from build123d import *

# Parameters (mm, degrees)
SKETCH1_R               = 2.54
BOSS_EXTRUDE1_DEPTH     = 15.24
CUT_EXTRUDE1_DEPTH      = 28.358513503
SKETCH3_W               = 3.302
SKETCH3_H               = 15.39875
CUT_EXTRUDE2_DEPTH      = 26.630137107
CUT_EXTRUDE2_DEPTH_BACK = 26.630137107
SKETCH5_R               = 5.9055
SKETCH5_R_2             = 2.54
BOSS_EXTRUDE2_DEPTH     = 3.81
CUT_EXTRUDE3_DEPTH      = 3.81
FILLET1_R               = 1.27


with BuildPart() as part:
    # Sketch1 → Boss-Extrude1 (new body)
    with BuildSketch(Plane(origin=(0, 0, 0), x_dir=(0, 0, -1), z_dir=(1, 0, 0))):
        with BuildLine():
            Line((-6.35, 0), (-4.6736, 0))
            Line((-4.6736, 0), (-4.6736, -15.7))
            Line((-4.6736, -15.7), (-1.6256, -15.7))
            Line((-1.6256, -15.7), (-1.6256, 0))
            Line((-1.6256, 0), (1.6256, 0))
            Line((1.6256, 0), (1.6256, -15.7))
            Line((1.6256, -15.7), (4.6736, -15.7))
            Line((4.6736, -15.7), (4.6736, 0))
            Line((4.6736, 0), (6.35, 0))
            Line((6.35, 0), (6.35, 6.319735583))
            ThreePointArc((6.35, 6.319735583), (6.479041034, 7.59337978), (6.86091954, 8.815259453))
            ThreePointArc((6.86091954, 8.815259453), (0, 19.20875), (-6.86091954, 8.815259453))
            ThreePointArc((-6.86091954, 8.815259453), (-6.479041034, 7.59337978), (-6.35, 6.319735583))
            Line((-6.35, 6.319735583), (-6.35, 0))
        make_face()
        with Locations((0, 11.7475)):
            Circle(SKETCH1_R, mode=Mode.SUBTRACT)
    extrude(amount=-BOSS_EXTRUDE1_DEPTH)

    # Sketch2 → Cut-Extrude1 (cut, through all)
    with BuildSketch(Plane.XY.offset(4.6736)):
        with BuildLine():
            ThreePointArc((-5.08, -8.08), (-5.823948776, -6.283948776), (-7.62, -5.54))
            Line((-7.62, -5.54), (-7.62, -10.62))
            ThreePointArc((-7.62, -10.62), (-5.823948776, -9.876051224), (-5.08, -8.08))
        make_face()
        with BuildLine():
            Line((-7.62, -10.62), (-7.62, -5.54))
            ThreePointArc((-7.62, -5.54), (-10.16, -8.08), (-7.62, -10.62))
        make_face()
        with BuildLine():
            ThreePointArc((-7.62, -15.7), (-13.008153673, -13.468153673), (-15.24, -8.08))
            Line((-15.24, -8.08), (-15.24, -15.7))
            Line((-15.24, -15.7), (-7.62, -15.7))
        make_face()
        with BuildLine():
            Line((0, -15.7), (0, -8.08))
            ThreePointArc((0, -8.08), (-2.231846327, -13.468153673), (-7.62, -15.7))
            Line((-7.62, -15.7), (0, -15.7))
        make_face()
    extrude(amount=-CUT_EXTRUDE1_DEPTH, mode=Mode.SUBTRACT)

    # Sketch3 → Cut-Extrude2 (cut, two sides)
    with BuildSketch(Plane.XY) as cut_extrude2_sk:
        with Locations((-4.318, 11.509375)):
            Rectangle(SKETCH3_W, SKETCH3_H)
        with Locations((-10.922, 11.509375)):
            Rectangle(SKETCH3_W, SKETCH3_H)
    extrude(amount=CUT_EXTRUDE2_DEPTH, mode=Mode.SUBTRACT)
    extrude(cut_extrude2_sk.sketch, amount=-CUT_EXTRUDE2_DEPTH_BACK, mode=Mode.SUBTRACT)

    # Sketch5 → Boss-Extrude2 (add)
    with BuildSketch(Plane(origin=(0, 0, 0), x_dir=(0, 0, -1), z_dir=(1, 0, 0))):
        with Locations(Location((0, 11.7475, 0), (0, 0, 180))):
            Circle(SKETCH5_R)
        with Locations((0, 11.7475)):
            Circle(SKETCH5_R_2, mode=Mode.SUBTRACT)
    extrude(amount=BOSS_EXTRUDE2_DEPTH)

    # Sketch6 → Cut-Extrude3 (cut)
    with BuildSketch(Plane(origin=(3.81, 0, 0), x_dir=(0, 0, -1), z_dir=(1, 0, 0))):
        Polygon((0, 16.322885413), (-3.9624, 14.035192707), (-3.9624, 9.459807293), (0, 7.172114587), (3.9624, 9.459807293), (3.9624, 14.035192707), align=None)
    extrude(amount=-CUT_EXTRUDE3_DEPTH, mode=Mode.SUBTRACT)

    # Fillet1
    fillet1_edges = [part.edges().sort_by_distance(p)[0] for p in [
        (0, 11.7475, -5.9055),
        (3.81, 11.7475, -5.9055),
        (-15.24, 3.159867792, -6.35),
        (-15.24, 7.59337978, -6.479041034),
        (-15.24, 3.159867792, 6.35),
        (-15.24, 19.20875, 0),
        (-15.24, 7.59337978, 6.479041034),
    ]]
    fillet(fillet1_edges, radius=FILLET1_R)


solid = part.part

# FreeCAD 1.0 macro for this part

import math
import FreeCAD as App
import Part
import Sketcher
from FreeCAD import Vector
Q = App.Units.Quantity


def edges_at(feature, points):
    """Names of the edges that pass closest to the given points."""
    edges = feature.Shape.Edges
    near = lambda p: min(range(len(edges)), key=lambda i: edges[i].distToShape(Part.Vertex(*p))[0])
    return sorted({f"Edge{near(p) + 1}" for p in points})

doc = App.newDocument("Part")
body = doc.addObject("PartDesign::Body", "Body")

# Sketch on YZ plane
sketch1 = doc.addObject("Sketcher::SketchObject", "Sketch")
body.addObject(sketch1)
sketch1.AttachmentSupport = (doc.YZ_Plane, [""])
sketch1.MapMode = "FlatFace"
sketch1.addGeometry(Part.LineSegment(Vector(0, 6.35, 0), Vector(0, 4.6736, 0)), False)
sketch1.addGeometry(Part.LineSegment(Vector(0, 4.6736, 0), Vector(-15.7, 4.6736, 0)), False)
sketch1.addGeometry(Part.LineSegment(Vector(-15.7, 4.6736, 0), Vector(-15.7, 1.6256, 0)), False)
sketch1.addGeometry(Part.LineSegment(Vector(-15.7, 1.6256, 0), Vector(0, 1.6256, 0)), False)
sketch1.addGeometry(Part.LineSegment(Vector(0, 1.6256, 0), Vector(0, -1.6256, 0)), False)
sketch1.addGeometry(Part.LineSegment(Vector(0, -1.6256, 0), Vector(-15.7, -1.6256, 0)), False)
sketch1.addGeometry(Part.LineSegment(Vector(-15.7, -1.6256, 0), Vector(-15.7, -4.6736, 0)), False)
sketch1.addGeometry(Part.LineSegment(Vector(-15.7, -4.6736, 0), Vector(0, -4.6736, 0)), False)
sketch1.addGeometry(Part.LineSegment(Vector(0, -4.6736, 0), Vector(0, -6.35, 0)), False)
sketch1.addGeometry(Part.LineSegment(Vector(0, -6.35, 0), Vector(6.319736, -6.35, 0)), False)
sketch1.addGeometry(Part.ArcOfCircle(Part.Circle(Vector(6.319736, -12.7, 0), Vector(0, 0, 1), 6.35), math.radians(66.858959), math.radians(90)), False)
sketch1.addGeometry(Part.ArcOfCircle(Part.Circle(Vector(11.7475, 0, 0), Vector(0, 0, 1), 7.46125), math.radians(-113.141041), math.radians(113.141041)), False)
sketch1.addGeometry(Part.ArcOfCircle(Part.Circle(Vector(6.319736, 12.7, 0), Vector(0, 0, 1), 6.35), math.radians(-90), math.radians(-66.858959)), False)
sketch1.addGeometry(Part.LineSegment(Vector(6.319736, 6.35, 0), Vector(0, 6.35, 0)), False)
sketch1.addGeometry(Part.Circle(Vector(11.7475, 0, 0), Vector(0, 0, 1), 2.54), False)
sketch1.addConstraint(Sketcher.Constraint("Coincident", 0, 2, 1, 1))
sketch1.addConstraint(Sketcher.Constraint("Coincident", 1, 2, 2, 1))
sketch1.addConstraint(Sketcher.Constraint("Coincident", 2, 2, 3, 1))
sketch1.addConstraint(Sketcher.Constraint("Coincident", 3, 2, 4, 1))
sketch1.addConstraint(Sketcher.Constraint("Coincident", 4, 2, 5, 1))
sketch1.addConstraint(Sketcher.Constraint("Coincident", 5, 2, 6, 1))
sketch1.addConstraint(Sketcher.Constraint("Coincident", 6, 2, 7, 1))
sketch1.addConstraint(Sketcher.Constraint("Coincident", 7, 2, 8, 1))
sketch1.addConstraint(Sketcher.Constraint("Coincident", 8, 2, 9, 1))
sketch1.addConstraint(Sketcher.Constraint("Tangent", 9, 2, 10, 2))
sketch1.addConstraint(Sketcher.Constraint("Tangent", 10, 1, 11, 1))
sketch1.addConstraint(Sketcher.Constraint("Tangent", 11, 2, 12, 2))
sketch1.addConstraint(Sketcher.Constraint("Tangent", 12, 1, 13, 1))
sketch1.addConstraint(Sketcher.Constraint("Coincident", 13, 2, 0, 1))
sketch1.addConstraint(Sketcher.Constraint("Vertical", 0))
sketch1.addConstraint(Sketcher.Constraint("Horizontal", 1))
sketch1.addConstraint(Sketcher.Constraint("Vertical", 2))
sketch1.addConstraint(Sketcher.Constraint("Horizontal", 3))
sketch1.addConstraint(Sketcher.Constraint("Vertical", 4))
sketch1.addConstraint(Sketcher.Constraint("Horizontal", 5))
sketch1.addConstraint(Sketcher.Constraint("Vertical", 6))
sketch1.addConstraint(Sketcher.Constraint("Horizontal", 7))
sketch1.addConstraint(Sketcher.Constraint("Vertical", 8))
sketch1.addConstraint(Sketcher.Constraint("Horizontal", 9))
sketch1.addConstraint(Sketcher.Constraint("Horizontal", 13))
sketch1.addConstraint(Sketcher.Constraint("Coincident", 14, 3, 11, 3))
sketch1.addConstraint(Sketcher.Constraint("Equal", 10, 12))
sketch1.addConstraint(Sketcher.Constraint("Symmetric", 3, 2, 4, 2, -1, 1))
sketch1.addConstraint(Sketcher.Constraint("Symmetric", 0, 2, 7, 2, -1, 1))
sketch1.addConstraint(Sketcher.Constraint("Symmetric", 10, 3, 12, 3, -1))
sketch1.addConstraint(Sketcher.Constraint("PointOnObject", 0, 2, -2))
sketch1.addConstraint(Sketcher.Constraint("Vertical", 2, 2, 5, 2))
sketch1.addConstraint(Sketcher.Constraint("Diameter", 14, Q("0.2 in")))
sketch1.addConstraint(Sketcher.Constraint("Radius", 10, Q("0.25 in")))
sketch1.addConstraint(Sketcher.Constraint("DistanceY", 10, 3, 12, 3, Q("1 in")))
sketch1.addConstraint(Sketcher.Constraint("DistanceY", 2, 2, 2, 1, Q("0.12 in")))
sketch1.addConstraint(Sketcher.Constraint("DistanceY", 0, 2, 0, 1, Q("0.066 in")))
sketch1.addConstraint(Sketcher.Constraint("Radius", 11, Q("7.46125 mm")))
sketch1.addConstraint(Sketcher.Constraint("DistanceX", 1, 2, 1, 1, Q("15.7 mm")))
sketch1.addConstraint(Sketcher.Constraint("DistanceX", -1, 1, 11, 3, Q("0.4625 in")))
pad1 = doc.addObject("PartDesign::Pad", "Pad")
body.addObject(pad1)
pad1.Profile = sketch1
pad1.Length = Q("0.6 in")
pad1.Reversed = True

# Sketch on XY plane
sketch2 = doc.addObject("Sketcher::SketchObject", "Sketch001")
body.addObject(sketch2)
sketch2.AttachmentSupport = (doc.XY_Plane, [""])
sketch2.MapMode = "FlatFace"
sketch2.AttachmentOffset = App.Placement(Vector(0, 0, 0.184 * 25.4), App.Rotation())
sketch2.addGeometry(Part.ArcOfCircle(Part.Circle(Vector(-7.62, -8.08, 0), Vector(0, 0, 1), 2.54), math.radians(0), math.radians(90)), False)
sketch2.addGeometry(Part.ArcOfCircle(Part.Circle(Vector(-7.62, -8.08, 0), Vector(0, 0, 1), 2.54), math.radians(90), math.radians(270)), False)
sketch2.addGeometry(Part.ArcOfCircle(Part.Circle(Vector(-7.62, -8.08, 0), Vector(0, 0, 1), 2.54), math.radians(-90), math.radians(0)), False)
sketch2.addGeometry(Part.ArcOfCircle(Part.Circle(Vector(-7.62, -8.08, 0), Vector(0, 0, 1), 7.62), math.radians(180), math.radians(270)), False)
sketch2.addGeometry(Part.LineSegment(Vector(-15.24, -8.08, 0), Vector(-15.24, -15.7, 0)), False)
sketch2.addGeometry(Part.LineSegment(Vector(-15.24, -15.7, 0), Vector(-7.62, -15.7, 0)), False)
sketch2.addGeometry(Part.LineSegment(Vector(0, -15.7, 0), Vector(0, -8.08, 0)), False)
sketch2.addGeometry(Part.ArcOfCircle(Part.Circle(Vector(-7.62, -8.08, 0), Vector(0, 0, 1), 7.62), math.radians(-90), math.radians(0)), False)
sketch2.addGeometry(Part.LineSegment(Vector(-7.62, -15.7, 0), Vector(0, -15.7, 0)), False)
sketch2.addConstraint(Sketcher.Constraint("Tangent", 0, 2, 1, 1))
sketch2.addConstraint(Sketcher.Constraint("Tangent", 1, 2, 2, 1))
sketch2.addConstraint(Sketcher.Constraint("Tangent", 2, 2, 0, 1))
sketch2.addConstraint(Sketcher.Constraint("Tangent", 3, 1, 4, 1))
sketch2.addConstraint(Sketcher.Constraint("Coincident", 4, 2, 5, 1))
sketch2.addConstraint(Sketcher.Constraint("Tangent", 5, 2, 3, 2))
sketch2.addConstraint(Sketcher.Constraint("Tangent", 6, 2, 7, 2))
sketch2.addConstraint(Sketcher.Constraint("Tangent", 7, 1, 8, 1))
sketch2.addConstraint(Sketcher.Constraint("Coincident", 8, 2, 6, 1))
sketch2.addConstraint(Sketcher.Constraint("Vertical", 4))
sketch2.addConstraint(Sketcher.Constraint("Horizontal", 5))
sketch2.addConstraint(Sketcher.Constraint("Vertical", 6))
sketch2.addConstraint(Sketcher.Constraint("Horizontal", 8))
sketch2.addConstraint(Sketcher.Constraint("Coincident", 3, 3, 0, 3))
sketch2.addConstraint(Sketcher.Constraint("Coincident", 7, 3, 0, 3))
sketch2.addConstraint(Sketcher.Constraint("Equal", 3, 7))
sketch2.addConstraint(Sketcher.Constraint("PointOnObject", 6, 2, -2))
sketch2.addConstraint(Sketcher.Constraint("Horizontal", 7, 3, 2, 2))
sketch2.addConstraint(Sketcher.Constraint("Vertical", 7, 3, 0, 2))
sketch2.addConstraint(Sketcher.Constraint("Vertical", 0, 2, 1, 2))
sketch2.addConstraint(Sketcher.Constraint("Radius", 0, Q("0.1 in")))
sketch2.addConstraint(Sketcher.Constraint("Radius", 3, Q("0.3 in")))
sketch2.addConstraint(Sketcher.Constraint("DistanceY", 0, 3, -1, 1, Q("8.08 mm")))
pocket1 = doc.addObject("PartDesign::Pocket", "Pocket")
body.addObject(pocket1)
pocket1.Profile = sketch2
pocket1.Type = "ThroughAll"

# Sketch on XY plane
sketch3 = doc.addObject("Sketcher::SketchObject", "Sketch002")
body.addObject(sketch3)
sketch3.AttachmentSupport = (doc.XY_Plane, [""])
sketch3.MapMode = "FlatFace"
sketch3.addGeometry(Part.LineSegment(Vector(-5.969, 19.20875, 0), Vector(-5.969, 3.81, 0)), False)
sketch3.addGeometry(Part.LineSegment(Vector(-5.969, 3.81, 0), Vector(-2.667, 3.81, 0)), False)
sketch3.addGeometry(Part.LineSegment(Vector(-2.667, 3.81, 0), Vector(-2.667, 19.20875, 0)), False)
sketch3.addGeometry(Part.LineSegment(Vector(-2.667, 19.20875, 0), Vector(-5.969, 19.20875, 0)), False)
sketch3.addGeometry(Part.LineSegment(Vector(-12.573, 19.20875, 0), Vector(-12.573, 3.81, 0)), False)
sketch3.addGeometry(Part.LineSegment(Vector(-12.573, 3.81, 0), Vector(-9.271, 3.81, 0)), False)
sketch3.addGeometry(Part.LineSegment(Vector(-9.271, 3.81, 0), Vector(-9.271, 19.20875, 0)), False)
sketch3.addGeometry(Part.LineSegment(Vector(-9.271, 19.20875, 0), Vector(-12.573, 19.20875, 0)), False)
sketch3.addConstraint(Sketcher.Constraint("Coincident", 0, 2, 1, 1))
sketch3.addConstraint(Sketcher.Constraint("Coincident", 1, 2, 2, 1))
sketch3.addConstraint(Sketcher.Constraint("Coincident", 2, 2, 3, 1))
sketch3.addConstraint(Sketcher.Constraint("Coincident", 3, 2, 0, 1))
sketch3.addConstraint(Sketcher.Constraint("Coincident", 4, 2, 5, 1))
sketch3.addConstraint(Sketcher.Constraint("Coincident", 5, 2, 6, 1))
sketch3.addConstraint(Sketcher.Constraint("Coincident", 6, 2, 7, 1))
sketch3.addConstraint(Sketcher.Constraint("Coincident", 7, 2, 4, 1))
sketch3.addConstraint(Sketcher.Constraint("Vertical", 0))
sketch3.addConstraint(Sketcher.Constraint("Horizontal", 1))
sketch3.addConstraint(Sketcher.Constraint("Vertical", 2))
sketch3.addConstraint(Sketcher.Constraint("Horizontal", 3))
sketch3.addConstraint(Sketcher.Constraint("Vertical", 4))
sketch3.addConstraint(Sketcher.Constraint("Horizontal", 5))
sketch3.addConstraint(Sketcher.Constraint("Vertical", 6))
sketch3.addConstraint(Sketcher.Constraint("Horizontal", 7))
sketch3.addConstraint(Sketcher.Constraint("Horizontal", 1, 2, 4, 2))
sketch3.addConstraint(Sketcher.Constraint("Horizontal", 3, 2, 6, 2))
sketch3.addConstraint(Sketcher.Constraint("Equal", 3, 5))
sketch3.addConstraint(Sketcher.Constraint("DistanceX", 1, 1, 1, 2, Q("0.13 in")))
sketch3.addConstraint(Sketcher.Constraint("DistanceY", -1, 1, 0, 2, Q("0.15 in")))
sketch3.addConstraint(Sketcher.Constraint("DistanceX", 4, 2, 0, 2, Q("0.26 in")))
sketch3.addConstraint(Sketcher.Constraint("DistanceX", 0, 2, -1, 1, Q("0.235 in")))
sketch3.addConstraint(Sketcher.Constraint("DistanceY", 0, 2, 0, 1, Q("15.39875 mm")))
pocket2 = doc.addObject("PartDesign::Pocket", "Pocket001")
body.addObject(pocket2)
pocket2.Profile = sketch3
pocket2.Type = "ThroughAll"
pocket2.Midplane = True

# Sketch on YZ plane
sketch4 = doc.addObject("Sketcher::SketchObject", "Sketch003")
body.addObject(sketch4)
sketch4.AttachmentSupport = (doc.YZ_Plane, [""])
sketch4.MapMode = "FlatFace"
sketch4.addGeometry(Part.Circle(Vector(11.7475, 0, 0), Vector(0, 0, 1), 5.9055), False)
sketch4.addGeometry(Part.Circle(Vector(11.7475, 0, 0), Vector(0, 0, 1), 2.54), False)
sketch4.addConstraint(Sketcher.Constraint("Coincident", 1, 3, 0, 3))
sketch4.addConstraint(Sketcher.Constraint("PointOnObject", 0, 3, -1))
sketch4.addConstraint(Sketcher.Constraint("Diameter", 1, Q("0.2 in")))
sketch4.addConstraint(Sketcher.Constraint("Diameter", 0, Q("0.465 in")))
sketch4.addConstraint(Sketcher.Constraint("DistanceX", -1, 1, 0, 3, Q("0.4625 in")))
pad2 = doc.addObject("PartDesign::Pad", "Pad001")
body.addObject(pad2)
pad2.Profile = sketch4
pad2.Length = Q("0.15 in")

# Sketch on YZ plane
sketch5 = doc.addObject("Sketcher::SketchObject", "Sketch004")
body.addObject(sketch5)
sketch5.AttachmentSupport = (doc.YZ_Plane, [""])
sketch5.MapMode = "FlatFace"
sketch5.AttachmentOffset = App.Placement(Vector(0, 0, 0.15 * 25.4), App.Rotation())
sketch5.addGeometry(Part.LineSegment(Vector(16.322885, 0, 0), Vector(14.035193, 3.9624, 0)), False)
sketch5.addGeometry(Part.LineSegment(Vector(14.035193, 3.9624, 0), Vector(9.459807, 3.9624, 0)), False)
sketch5.addGeometry(Part.LineSegment(Vector(9.459807, 3.9624, 0), Vector(7.172115, 0, 0)), False)
sketch5.addGeometry(Part.LineSegment(Vector(7.172115, 0, 0), Vector(9.459807, -3.9624, 0)), False)
sketch5.addGeometry(Part.LineSegment(Vector(9.459807, -3.9624, 0), Vector(14.035193, -3.9624, 0)), False)
sketch5.addGeometry(Part.LineSegment(Vector(14.035193, -3.9624, 0), Vector(16.322885, 0, 0)), False)
sketch5.addConstraint(Sketcher.Constraint("Coincident", 0, 2, 1, 1))
sketch5.addConstraint(Sketcher.Constraint("Coincident", 1, 2, 2, 1))
sketch5.addConstraint(Sketcher.Constraint("Coincident", 2, 2, 3, 1))
sketch5.addConstraint(Sketcher.Constraint("Coincident", 3, 2, 4, 1))
sketch5.addConstraint(Sketcher.Constraint("Coincident", 4, 2, 5, 1))
sketch5.addConstraint(Sketcher.Constraint("Coincident", 5, 2, 0, 1))
sketch5.addConstraint(Sketcher.Constraint("Horizontal", 1))
sketch5.addConstraint(Sketcher.Constraint("Horizontal", 4))
sketch5.addConstraint(Sketcher.Constraint("Symmetric", 1, 2, 3, 2, -1))
sketch5.addConstraint(Sketcher.Constraint("PointOnObject", 2, 2, -1))
sketch5.addConstraint(Sketcher.Constraint("PointOnObject", 5, 2, -1))
sketch5.addConstraint(Sketcher.Constraint("Parallel", 0, 3))
sketch5.addConstraint(Sketcher.Constraint("Parallel", 2, 5))
sketch5.addConstraint(Sketcher.Constraint("Angle", 0, Q("120 deg")))
sketch5.addConstraint(Sketcher.Constraint("DistanceY", -1, 1, 0, 2, Q("0.156 in")))
sketch5.addConstraint(Sketcher.Constraint("DistanceX", 2, 2, 0, 2, Q("0.2701999 in")))
sketch5.addConstraint(Sketcher.Constraint("DistanceX", -1, 1, 0, 2, Q("14.035193 mm")))
pocket3 = doc.addObject("PartDesign::Pocket", "Pocket002")
body.addObject(pocket3)
pocket3.Profile = sketch5
pocket3.Length = Q("0.15 in")
doc.recompute()

fillet = doc.addObject("PartDesign::Fillet", "Fillet")
body.addObject(fillet)
fillet.Base = (pocket3, edges_at(pocket3, [
    (0, 11.748, -5.905),
    (3.81, 11.748, -5.905),
    (-15.24, 3.16, -6.35),
    (-15.24, 7.593, -6.479),
    (-15.24, 3.16, 6.35),
    (-15.24, 19.209, 0),
    (-15.24, 7.593, 6.479),
]))
fillet.Radius = Q("0.05 in")

doc.recompute()
